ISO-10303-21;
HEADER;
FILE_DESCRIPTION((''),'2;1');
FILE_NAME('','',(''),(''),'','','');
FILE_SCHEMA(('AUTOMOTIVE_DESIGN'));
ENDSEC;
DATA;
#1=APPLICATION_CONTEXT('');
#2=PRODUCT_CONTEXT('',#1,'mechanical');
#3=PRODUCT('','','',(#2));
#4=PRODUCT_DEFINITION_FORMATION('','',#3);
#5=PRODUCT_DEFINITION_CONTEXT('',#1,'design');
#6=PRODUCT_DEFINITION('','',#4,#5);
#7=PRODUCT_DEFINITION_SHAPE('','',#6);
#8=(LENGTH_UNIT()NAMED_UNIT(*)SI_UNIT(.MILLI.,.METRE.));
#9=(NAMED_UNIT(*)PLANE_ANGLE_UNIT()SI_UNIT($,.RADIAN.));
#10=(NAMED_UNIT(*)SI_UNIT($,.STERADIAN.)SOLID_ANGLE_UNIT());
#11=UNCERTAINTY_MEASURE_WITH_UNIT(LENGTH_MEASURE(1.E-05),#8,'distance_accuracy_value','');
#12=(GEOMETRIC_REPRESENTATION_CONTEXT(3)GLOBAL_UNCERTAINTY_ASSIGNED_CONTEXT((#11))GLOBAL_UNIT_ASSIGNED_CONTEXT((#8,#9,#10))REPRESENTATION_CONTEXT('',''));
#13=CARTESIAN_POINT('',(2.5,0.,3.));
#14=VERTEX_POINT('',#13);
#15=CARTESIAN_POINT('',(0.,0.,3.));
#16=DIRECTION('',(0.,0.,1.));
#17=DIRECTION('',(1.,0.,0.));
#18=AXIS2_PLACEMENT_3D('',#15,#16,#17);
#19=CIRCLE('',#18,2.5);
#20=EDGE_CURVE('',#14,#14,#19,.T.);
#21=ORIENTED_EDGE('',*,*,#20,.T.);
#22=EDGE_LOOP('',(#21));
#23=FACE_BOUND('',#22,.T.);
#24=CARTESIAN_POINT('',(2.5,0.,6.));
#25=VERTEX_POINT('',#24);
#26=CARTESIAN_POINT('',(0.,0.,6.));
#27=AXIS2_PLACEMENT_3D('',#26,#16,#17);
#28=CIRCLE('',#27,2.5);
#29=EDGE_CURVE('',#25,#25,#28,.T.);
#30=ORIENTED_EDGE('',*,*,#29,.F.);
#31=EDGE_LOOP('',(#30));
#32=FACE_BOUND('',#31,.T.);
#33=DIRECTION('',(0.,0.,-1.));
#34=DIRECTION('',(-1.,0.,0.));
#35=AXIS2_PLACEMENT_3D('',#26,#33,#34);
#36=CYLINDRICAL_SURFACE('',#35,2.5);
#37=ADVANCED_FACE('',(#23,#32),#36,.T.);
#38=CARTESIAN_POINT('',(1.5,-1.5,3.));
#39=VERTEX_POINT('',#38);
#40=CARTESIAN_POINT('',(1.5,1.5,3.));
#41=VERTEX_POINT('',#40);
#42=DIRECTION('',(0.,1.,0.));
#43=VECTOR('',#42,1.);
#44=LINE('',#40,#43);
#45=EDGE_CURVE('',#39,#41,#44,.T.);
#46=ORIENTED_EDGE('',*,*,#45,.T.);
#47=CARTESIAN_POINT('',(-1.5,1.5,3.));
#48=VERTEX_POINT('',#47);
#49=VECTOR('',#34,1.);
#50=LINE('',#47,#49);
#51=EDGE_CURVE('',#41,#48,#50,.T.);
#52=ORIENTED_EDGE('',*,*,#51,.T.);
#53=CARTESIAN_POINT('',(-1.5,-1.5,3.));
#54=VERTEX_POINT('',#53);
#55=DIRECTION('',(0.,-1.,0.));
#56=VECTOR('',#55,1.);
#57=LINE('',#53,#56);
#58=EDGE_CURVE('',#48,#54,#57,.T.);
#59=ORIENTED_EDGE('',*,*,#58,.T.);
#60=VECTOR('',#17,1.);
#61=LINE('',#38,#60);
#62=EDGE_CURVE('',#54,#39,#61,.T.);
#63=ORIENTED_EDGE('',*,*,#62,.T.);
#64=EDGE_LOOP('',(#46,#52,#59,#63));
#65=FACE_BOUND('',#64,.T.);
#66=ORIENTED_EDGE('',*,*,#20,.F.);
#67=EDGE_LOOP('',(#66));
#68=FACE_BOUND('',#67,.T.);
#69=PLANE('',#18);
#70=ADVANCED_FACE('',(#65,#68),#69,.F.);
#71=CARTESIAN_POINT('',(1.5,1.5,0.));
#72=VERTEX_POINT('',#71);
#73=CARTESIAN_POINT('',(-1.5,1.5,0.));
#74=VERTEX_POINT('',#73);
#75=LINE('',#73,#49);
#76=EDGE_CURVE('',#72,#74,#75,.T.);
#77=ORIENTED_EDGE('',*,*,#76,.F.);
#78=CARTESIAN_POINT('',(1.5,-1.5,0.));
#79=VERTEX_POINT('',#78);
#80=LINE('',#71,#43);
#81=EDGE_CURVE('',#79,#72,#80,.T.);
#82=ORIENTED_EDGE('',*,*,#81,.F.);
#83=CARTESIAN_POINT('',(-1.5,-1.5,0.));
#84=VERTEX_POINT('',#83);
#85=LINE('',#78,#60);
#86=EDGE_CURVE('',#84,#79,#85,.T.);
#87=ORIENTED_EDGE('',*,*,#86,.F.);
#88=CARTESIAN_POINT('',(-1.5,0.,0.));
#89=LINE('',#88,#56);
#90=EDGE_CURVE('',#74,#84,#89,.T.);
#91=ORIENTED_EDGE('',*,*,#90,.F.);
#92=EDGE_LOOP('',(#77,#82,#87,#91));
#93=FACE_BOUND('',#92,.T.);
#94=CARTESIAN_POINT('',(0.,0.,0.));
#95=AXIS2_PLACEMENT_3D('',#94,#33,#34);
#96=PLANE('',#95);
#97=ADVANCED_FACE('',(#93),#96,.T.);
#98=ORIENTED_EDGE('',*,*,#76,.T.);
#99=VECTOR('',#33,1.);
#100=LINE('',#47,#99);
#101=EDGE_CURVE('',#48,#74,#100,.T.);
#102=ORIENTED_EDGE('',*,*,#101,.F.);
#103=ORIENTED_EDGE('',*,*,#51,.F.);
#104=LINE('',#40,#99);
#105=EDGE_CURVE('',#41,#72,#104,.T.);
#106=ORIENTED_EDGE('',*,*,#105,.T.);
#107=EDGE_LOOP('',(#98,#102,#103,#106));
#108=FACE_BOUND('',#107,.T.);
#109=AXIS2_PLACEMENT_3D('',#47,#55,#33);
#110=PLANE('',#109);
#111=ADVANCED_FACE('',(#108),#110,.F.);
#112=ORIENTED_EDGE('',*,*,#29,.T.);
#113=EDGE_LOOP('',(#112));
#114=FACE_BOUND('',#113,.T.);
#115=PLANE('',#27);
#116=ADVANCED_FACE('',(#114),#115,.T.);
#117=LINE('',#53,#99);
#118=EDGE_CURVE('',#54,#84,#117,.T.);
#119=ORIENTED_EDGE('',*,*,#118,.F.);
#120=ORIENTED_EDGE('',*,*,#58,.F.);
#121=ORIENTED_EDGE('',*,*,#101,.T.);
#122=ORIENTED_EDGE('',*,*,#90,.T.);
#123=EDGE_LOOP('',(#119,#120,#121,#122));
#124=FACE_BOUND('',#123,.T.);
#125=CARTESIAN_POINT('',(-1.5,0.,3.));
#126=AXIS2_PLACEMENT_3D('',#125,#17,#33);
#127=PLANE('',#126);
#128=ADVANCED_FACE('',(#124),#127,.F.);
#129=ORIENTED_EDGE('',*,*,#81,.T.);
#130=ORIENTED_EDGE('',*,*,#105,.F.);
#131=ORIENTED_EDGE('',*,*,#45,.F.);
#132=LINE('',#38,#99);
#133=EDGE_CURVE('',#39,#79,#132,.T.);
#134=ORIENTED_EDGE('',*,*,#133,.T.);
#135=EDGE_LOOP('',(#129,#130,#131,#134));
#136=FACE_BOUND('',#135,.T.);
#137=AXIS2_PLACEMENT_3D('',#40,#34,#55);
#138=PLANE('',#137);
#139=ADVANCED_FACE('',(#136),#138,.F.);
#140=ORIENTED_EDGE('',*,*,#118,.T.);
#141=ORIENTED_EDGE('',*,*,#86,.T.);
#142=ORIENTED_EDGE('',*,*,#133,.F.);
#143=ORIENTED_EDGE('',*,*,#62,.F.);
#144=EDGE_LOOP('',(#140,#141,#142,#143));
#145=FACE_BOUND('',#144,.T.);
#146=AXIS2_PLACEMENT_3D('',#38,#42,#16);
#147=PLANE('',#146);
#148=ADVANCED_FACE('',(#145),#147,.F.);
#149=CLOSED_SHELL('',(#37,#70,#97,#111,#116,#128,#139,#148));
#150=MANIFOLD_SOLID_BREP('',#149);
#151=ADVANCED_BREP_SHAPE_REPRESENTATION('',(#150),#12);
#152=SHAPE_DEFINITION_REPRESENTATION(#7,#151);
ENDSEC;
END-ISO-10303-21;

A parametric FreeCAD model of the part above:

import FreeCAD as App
import Part
import Sketcher
Q = App.Units.Quantity

doc = App.newDocument("Part")
body = doc.addObject("PartDesign::Body", "Body")

# Sketch on XY plane
sketch1 = doc.addObject("Sketcher::SketchObject", "Sketch")
body.addObject(sketch1)
sketch1.AttachmentSupport = (doc.XY_Plane, [""])
sketch1.MapMode = "FlatFace"
sketch1.addGeometry(Part.LineSegment(App.Vector(-1.5, 1.5, 0), App.Vector(-1.5, -1.5, 0)), False)
sketch1.addGeometry(Part.LineSegment(App.Vector(-1.5, -1.5, 0), App.Vector(1.5, -1.5, 0)), False)
sketch1.addGeometry(Part.LineSegment(App.Vector(1.5, -1.5, 0), App.Vector(1.5, 1.5, 0)), False)
sketch1.addGeometry(Part.LineSegment(App.Vector(1.5, 1.5, 0), App.Vector(-1.5, 1.5, 0)), False)
sketch1.addConstraint(Sketcher.Constraint("Coincident", 0, 2, 1, 1))
sketch1.addConstraint(Sketcher.Constraint("Coincident", 1, 2, 2, 1))
sketch1.addConstraint(Sketcher.Constraint("Coincident", 2, 2, 3, 1))
sketch1.addConstraint(Sketcher.Constraint("Coincident", 3, 2, 0, 1))
sketch1.addConstraint(Sketcher.Constraint("Vertical", 0))
sketch1.addConstraint(Sketcher.Constraint("Horizontal", 1))
sketch1.addConstraint(Sketcher.Constraint("Vertical", 2))
sketch1.addConstraint(Sketcher.Constraint("Horizontal", 3))
sketch1.addConstraint(Sketcher.Constraint("Symmetric", 0, 2, 2, 2, -1, 1))
sketch1.addConstraint(Sketcher.Constraint("Equal", 3, 0))
sketch1.addConstraint(Sketcher.Constraint("DistanceX", 1, 1, 1, 2, Q("3 mm")))
pad1 = doc.addObject("PartDesign::Pad", "Pad")
body.addObject(pad1)
pad1.Profile = sketch1
pad1.Length = 3

# Sketch on XY plane
sketch2 = doc.addObject("Sketcher::SketchObject", "Sketch001")
body.addObject(sketch2)
sketch2.AttachmentSupport = (doc.XY_Plane, [""])
sketch2.MapMode = "FlatFace"
sketch2.AttachmentOffset = App.Placement(App.Vector(0, 0, 3), App.Rotation())
sketch2.addGeometry(Part.Circle(App.Vector(0, 0, 0), App.Vector(0, 0, 1), 2.5), False)
sketch2.addConstraint(Sketcher.Constraint("Coincident", 0, 3, -1, 1))
sketch2.addConstraint(Sketcher.Constraint("Diameter", 0, Q("5 mm")))
pad2 = doc.addObject("PartDesign::Pad", "Pad001")
body.addObject(pad2)
pad2.Profile = sketch2
pad2.Length = 3

doc.recompute()
